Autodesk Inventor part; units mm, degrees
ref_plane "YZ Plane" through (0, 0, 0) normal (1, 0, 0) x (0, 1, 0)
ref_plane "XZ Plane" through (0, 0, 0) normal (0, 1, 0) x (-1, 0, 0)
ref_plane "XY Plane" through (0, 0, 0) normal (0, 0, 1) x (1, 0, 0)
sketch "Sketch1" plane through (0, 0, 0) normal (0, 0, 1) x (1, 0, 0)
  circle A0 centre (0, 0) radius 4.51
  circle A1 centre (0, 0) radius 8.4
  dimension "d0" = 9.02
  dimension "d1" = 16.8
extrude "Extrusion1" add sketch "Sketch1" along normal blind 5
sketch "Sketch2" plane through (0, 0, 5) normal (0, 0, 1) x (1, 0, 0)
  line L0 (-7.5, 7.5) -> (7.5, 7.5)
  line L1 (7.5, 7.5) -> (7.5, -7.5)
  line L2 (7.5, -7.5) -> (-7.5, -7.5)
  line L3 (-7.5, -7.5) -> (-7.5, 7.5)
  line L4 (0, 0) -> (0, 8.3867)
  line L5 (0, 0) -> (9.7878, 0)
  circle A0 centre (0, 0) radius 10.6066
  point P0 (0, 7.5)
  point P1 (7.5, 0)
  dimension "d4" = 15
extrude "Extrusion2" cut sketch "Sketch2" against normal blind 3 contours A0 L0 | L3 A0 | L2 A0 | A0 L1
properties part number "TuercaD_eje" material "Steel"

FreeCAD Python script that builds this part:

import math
import FreeCAD as App
import Part
import Sketcher
Q = App.Units.Quantity

doc = App.newDocument("Part")
body = doc.addObject("PartDesign::Body", "Body")

# Sketch on XY plane
sketch1 = body.newObject("Sketcher::SketchObject", "Sketch")
sketch1.AttachmentSupport = (doc.getObject("XY_Plane"), [""])
sketch1.MapMode = "FlatFace"
sketch1.addGeometry(Part.Circle(App.Vector(0, 0, 0), App.Vector(0, 0, 1), 8.4), False)
sketch1.addGeometry(Part.Circle(App.Vector(0, 0, 0), App.Vector(0, 0, 1), 4.5), False)
sketch1.addConstraint(Sketcher.Constraint("Coincident", 0, 3, -1, 1))
sketch1.addConstraint(Sketcher.Constraint("Coincident", 1, 3, -1, 1))
sketch1.addConstraint(Sketcher.Constraint("Diameter", 0, Q("16.8 mm")))
sketch1.addConstraint(Sketcher.Constraint("Diameter", 1, Q("9.02 mm")))
pad1 = body.newObject("PartDesign::Pad", "Pad")
pad1.Profile = sketch1
pad1.Length = 5

# Sketch on XY plane
sketch2 = body.newObject("Sketcher::SketchObject", "Sketch001")
sketch2.AttachmentSupport = (doc.getObject("XY_Plane"), [""])
sketch2.MapMode = "FlatFace"
sketch2.AttachmentOffset = App.Placement(App.Vector(0, 0, 5), App.Rotation())
sketch2.addGeometry(Part.ArcOfCircle(Part.Circle(App.Vector(0, 0, 0), App.Vector(0, 0, 1), 11), math.radians(45), math.radians(135)), False)
sketch2.addGeometry(Part.LineSegment(App.Vector(8, 8, 0), App.Vector(-8, 8, 0)), False)
sketch2.addGeometry(Part.LineSegment(App.Vector(-8, -8, 0), App.Vector(-8, 8, 0)), False)
sketch2.addGeometry(Part.ArcOfCircle(Part.Circle(App.Vector(0, 0, 0), App.Vector(0, 0, 1), 11), math.radians(135), math.radians(225)), False)
sketch2.addGeometry(Part.LineSegment(App.Vector(8, -8, 0), App.Vector(-8, -8, 0)), False)
sketch2.addGeometry(Part.ArcOfCircle(Part.Circle(App.Vector(0, 0, 0), App.Vector(0, 0, 1), 11), math.radians(-135), math.radians(-45)), False)
sketch2.addGeometry(Part.ArcOfCircle(Part.Circle(App.Vector(0, 0, 0), App.Vector(0, 0, 1), 11), math.radians(-45), math.radians(45)), False)
sketch2.addGeometry(Part.LineSegment(App.Vector(8, -8, 0), App.Vector(8, 8, 0)), False)
sketch2.addConstraint(Sketcher.Constraint("Coincident", 0, 1, 1, 1))
sketch2.addConstraint(Sketcher.Constraint("Coincident", 1, 2, 0, 2))
sketch2.addConstraint(Sketcher.Constraint("Coincident", 2, 1, 3, 2))
sketch2.addConstraint(Sketcher.Constraint("Coincident", 3, 1, 2, 2))
sketch2.addConstraint(Sketcher.Constraint("Coincident", 4, 1, 5, 2))
sketch2.addConstraint(Sketcher.Constraint("Coincident", 5, 1, 4, 2))
sketch2.addConstraint(Sketcher.Constraint("Coincident", 6, 1, 7, 1))
sketch2.addConstraint(Sketcher.Constraint("Coincident", 7, 2, 6, 2))
sketch2.addConstraint(Sketcher.Constraint("Horizontal", 1))
sketch2.addConstraint(Sketcher.Constraint("Vertical", 2))
sketch2.addConstraint(Sketcher.Constraint("Horizontal", 4))
sketch2.addConstraint(Sketcher.Constraint("Vertical", 7))
sketch2.addConstraint(Sketcher.Constraint("Coincident", 0, 3, -1, 1))
sketch2.addConstraint(Sketcher.Constraint("Coincident", 3, 3, -1, 1))
sketch2.addConstraint(Sketcher.Constraint("Coincident", 5, 3, -1, 1))
sketch2.addConstraint(Sketcher.Constraint("Coincident", 6, 3, -1, 1))
sketch2.addConstraint(Sketcher.Constraint("Coincident", 3, 1, 1, 2))
sketch2.addConstraint(Sketcher.Constraint("Coincident", 5, 1, 2, 1))
sketch2.addConstraint(Sketcher.Constraint("Coincident", 6, 1, 4, 1))
sketch2.addConstraint(Sketcher.Constraint("Equal", 4, 2))
sketch2.addConstraint(Sketcher.Constraint("DistanceX", 1, 2, 1, 1, Q("15 mm")))
pocket1 = body.newObject("PartDesign::Pocket", "Pocket")
pocket1.Profile = sketch2
pocket1.Length = 3

doc.recompute()
